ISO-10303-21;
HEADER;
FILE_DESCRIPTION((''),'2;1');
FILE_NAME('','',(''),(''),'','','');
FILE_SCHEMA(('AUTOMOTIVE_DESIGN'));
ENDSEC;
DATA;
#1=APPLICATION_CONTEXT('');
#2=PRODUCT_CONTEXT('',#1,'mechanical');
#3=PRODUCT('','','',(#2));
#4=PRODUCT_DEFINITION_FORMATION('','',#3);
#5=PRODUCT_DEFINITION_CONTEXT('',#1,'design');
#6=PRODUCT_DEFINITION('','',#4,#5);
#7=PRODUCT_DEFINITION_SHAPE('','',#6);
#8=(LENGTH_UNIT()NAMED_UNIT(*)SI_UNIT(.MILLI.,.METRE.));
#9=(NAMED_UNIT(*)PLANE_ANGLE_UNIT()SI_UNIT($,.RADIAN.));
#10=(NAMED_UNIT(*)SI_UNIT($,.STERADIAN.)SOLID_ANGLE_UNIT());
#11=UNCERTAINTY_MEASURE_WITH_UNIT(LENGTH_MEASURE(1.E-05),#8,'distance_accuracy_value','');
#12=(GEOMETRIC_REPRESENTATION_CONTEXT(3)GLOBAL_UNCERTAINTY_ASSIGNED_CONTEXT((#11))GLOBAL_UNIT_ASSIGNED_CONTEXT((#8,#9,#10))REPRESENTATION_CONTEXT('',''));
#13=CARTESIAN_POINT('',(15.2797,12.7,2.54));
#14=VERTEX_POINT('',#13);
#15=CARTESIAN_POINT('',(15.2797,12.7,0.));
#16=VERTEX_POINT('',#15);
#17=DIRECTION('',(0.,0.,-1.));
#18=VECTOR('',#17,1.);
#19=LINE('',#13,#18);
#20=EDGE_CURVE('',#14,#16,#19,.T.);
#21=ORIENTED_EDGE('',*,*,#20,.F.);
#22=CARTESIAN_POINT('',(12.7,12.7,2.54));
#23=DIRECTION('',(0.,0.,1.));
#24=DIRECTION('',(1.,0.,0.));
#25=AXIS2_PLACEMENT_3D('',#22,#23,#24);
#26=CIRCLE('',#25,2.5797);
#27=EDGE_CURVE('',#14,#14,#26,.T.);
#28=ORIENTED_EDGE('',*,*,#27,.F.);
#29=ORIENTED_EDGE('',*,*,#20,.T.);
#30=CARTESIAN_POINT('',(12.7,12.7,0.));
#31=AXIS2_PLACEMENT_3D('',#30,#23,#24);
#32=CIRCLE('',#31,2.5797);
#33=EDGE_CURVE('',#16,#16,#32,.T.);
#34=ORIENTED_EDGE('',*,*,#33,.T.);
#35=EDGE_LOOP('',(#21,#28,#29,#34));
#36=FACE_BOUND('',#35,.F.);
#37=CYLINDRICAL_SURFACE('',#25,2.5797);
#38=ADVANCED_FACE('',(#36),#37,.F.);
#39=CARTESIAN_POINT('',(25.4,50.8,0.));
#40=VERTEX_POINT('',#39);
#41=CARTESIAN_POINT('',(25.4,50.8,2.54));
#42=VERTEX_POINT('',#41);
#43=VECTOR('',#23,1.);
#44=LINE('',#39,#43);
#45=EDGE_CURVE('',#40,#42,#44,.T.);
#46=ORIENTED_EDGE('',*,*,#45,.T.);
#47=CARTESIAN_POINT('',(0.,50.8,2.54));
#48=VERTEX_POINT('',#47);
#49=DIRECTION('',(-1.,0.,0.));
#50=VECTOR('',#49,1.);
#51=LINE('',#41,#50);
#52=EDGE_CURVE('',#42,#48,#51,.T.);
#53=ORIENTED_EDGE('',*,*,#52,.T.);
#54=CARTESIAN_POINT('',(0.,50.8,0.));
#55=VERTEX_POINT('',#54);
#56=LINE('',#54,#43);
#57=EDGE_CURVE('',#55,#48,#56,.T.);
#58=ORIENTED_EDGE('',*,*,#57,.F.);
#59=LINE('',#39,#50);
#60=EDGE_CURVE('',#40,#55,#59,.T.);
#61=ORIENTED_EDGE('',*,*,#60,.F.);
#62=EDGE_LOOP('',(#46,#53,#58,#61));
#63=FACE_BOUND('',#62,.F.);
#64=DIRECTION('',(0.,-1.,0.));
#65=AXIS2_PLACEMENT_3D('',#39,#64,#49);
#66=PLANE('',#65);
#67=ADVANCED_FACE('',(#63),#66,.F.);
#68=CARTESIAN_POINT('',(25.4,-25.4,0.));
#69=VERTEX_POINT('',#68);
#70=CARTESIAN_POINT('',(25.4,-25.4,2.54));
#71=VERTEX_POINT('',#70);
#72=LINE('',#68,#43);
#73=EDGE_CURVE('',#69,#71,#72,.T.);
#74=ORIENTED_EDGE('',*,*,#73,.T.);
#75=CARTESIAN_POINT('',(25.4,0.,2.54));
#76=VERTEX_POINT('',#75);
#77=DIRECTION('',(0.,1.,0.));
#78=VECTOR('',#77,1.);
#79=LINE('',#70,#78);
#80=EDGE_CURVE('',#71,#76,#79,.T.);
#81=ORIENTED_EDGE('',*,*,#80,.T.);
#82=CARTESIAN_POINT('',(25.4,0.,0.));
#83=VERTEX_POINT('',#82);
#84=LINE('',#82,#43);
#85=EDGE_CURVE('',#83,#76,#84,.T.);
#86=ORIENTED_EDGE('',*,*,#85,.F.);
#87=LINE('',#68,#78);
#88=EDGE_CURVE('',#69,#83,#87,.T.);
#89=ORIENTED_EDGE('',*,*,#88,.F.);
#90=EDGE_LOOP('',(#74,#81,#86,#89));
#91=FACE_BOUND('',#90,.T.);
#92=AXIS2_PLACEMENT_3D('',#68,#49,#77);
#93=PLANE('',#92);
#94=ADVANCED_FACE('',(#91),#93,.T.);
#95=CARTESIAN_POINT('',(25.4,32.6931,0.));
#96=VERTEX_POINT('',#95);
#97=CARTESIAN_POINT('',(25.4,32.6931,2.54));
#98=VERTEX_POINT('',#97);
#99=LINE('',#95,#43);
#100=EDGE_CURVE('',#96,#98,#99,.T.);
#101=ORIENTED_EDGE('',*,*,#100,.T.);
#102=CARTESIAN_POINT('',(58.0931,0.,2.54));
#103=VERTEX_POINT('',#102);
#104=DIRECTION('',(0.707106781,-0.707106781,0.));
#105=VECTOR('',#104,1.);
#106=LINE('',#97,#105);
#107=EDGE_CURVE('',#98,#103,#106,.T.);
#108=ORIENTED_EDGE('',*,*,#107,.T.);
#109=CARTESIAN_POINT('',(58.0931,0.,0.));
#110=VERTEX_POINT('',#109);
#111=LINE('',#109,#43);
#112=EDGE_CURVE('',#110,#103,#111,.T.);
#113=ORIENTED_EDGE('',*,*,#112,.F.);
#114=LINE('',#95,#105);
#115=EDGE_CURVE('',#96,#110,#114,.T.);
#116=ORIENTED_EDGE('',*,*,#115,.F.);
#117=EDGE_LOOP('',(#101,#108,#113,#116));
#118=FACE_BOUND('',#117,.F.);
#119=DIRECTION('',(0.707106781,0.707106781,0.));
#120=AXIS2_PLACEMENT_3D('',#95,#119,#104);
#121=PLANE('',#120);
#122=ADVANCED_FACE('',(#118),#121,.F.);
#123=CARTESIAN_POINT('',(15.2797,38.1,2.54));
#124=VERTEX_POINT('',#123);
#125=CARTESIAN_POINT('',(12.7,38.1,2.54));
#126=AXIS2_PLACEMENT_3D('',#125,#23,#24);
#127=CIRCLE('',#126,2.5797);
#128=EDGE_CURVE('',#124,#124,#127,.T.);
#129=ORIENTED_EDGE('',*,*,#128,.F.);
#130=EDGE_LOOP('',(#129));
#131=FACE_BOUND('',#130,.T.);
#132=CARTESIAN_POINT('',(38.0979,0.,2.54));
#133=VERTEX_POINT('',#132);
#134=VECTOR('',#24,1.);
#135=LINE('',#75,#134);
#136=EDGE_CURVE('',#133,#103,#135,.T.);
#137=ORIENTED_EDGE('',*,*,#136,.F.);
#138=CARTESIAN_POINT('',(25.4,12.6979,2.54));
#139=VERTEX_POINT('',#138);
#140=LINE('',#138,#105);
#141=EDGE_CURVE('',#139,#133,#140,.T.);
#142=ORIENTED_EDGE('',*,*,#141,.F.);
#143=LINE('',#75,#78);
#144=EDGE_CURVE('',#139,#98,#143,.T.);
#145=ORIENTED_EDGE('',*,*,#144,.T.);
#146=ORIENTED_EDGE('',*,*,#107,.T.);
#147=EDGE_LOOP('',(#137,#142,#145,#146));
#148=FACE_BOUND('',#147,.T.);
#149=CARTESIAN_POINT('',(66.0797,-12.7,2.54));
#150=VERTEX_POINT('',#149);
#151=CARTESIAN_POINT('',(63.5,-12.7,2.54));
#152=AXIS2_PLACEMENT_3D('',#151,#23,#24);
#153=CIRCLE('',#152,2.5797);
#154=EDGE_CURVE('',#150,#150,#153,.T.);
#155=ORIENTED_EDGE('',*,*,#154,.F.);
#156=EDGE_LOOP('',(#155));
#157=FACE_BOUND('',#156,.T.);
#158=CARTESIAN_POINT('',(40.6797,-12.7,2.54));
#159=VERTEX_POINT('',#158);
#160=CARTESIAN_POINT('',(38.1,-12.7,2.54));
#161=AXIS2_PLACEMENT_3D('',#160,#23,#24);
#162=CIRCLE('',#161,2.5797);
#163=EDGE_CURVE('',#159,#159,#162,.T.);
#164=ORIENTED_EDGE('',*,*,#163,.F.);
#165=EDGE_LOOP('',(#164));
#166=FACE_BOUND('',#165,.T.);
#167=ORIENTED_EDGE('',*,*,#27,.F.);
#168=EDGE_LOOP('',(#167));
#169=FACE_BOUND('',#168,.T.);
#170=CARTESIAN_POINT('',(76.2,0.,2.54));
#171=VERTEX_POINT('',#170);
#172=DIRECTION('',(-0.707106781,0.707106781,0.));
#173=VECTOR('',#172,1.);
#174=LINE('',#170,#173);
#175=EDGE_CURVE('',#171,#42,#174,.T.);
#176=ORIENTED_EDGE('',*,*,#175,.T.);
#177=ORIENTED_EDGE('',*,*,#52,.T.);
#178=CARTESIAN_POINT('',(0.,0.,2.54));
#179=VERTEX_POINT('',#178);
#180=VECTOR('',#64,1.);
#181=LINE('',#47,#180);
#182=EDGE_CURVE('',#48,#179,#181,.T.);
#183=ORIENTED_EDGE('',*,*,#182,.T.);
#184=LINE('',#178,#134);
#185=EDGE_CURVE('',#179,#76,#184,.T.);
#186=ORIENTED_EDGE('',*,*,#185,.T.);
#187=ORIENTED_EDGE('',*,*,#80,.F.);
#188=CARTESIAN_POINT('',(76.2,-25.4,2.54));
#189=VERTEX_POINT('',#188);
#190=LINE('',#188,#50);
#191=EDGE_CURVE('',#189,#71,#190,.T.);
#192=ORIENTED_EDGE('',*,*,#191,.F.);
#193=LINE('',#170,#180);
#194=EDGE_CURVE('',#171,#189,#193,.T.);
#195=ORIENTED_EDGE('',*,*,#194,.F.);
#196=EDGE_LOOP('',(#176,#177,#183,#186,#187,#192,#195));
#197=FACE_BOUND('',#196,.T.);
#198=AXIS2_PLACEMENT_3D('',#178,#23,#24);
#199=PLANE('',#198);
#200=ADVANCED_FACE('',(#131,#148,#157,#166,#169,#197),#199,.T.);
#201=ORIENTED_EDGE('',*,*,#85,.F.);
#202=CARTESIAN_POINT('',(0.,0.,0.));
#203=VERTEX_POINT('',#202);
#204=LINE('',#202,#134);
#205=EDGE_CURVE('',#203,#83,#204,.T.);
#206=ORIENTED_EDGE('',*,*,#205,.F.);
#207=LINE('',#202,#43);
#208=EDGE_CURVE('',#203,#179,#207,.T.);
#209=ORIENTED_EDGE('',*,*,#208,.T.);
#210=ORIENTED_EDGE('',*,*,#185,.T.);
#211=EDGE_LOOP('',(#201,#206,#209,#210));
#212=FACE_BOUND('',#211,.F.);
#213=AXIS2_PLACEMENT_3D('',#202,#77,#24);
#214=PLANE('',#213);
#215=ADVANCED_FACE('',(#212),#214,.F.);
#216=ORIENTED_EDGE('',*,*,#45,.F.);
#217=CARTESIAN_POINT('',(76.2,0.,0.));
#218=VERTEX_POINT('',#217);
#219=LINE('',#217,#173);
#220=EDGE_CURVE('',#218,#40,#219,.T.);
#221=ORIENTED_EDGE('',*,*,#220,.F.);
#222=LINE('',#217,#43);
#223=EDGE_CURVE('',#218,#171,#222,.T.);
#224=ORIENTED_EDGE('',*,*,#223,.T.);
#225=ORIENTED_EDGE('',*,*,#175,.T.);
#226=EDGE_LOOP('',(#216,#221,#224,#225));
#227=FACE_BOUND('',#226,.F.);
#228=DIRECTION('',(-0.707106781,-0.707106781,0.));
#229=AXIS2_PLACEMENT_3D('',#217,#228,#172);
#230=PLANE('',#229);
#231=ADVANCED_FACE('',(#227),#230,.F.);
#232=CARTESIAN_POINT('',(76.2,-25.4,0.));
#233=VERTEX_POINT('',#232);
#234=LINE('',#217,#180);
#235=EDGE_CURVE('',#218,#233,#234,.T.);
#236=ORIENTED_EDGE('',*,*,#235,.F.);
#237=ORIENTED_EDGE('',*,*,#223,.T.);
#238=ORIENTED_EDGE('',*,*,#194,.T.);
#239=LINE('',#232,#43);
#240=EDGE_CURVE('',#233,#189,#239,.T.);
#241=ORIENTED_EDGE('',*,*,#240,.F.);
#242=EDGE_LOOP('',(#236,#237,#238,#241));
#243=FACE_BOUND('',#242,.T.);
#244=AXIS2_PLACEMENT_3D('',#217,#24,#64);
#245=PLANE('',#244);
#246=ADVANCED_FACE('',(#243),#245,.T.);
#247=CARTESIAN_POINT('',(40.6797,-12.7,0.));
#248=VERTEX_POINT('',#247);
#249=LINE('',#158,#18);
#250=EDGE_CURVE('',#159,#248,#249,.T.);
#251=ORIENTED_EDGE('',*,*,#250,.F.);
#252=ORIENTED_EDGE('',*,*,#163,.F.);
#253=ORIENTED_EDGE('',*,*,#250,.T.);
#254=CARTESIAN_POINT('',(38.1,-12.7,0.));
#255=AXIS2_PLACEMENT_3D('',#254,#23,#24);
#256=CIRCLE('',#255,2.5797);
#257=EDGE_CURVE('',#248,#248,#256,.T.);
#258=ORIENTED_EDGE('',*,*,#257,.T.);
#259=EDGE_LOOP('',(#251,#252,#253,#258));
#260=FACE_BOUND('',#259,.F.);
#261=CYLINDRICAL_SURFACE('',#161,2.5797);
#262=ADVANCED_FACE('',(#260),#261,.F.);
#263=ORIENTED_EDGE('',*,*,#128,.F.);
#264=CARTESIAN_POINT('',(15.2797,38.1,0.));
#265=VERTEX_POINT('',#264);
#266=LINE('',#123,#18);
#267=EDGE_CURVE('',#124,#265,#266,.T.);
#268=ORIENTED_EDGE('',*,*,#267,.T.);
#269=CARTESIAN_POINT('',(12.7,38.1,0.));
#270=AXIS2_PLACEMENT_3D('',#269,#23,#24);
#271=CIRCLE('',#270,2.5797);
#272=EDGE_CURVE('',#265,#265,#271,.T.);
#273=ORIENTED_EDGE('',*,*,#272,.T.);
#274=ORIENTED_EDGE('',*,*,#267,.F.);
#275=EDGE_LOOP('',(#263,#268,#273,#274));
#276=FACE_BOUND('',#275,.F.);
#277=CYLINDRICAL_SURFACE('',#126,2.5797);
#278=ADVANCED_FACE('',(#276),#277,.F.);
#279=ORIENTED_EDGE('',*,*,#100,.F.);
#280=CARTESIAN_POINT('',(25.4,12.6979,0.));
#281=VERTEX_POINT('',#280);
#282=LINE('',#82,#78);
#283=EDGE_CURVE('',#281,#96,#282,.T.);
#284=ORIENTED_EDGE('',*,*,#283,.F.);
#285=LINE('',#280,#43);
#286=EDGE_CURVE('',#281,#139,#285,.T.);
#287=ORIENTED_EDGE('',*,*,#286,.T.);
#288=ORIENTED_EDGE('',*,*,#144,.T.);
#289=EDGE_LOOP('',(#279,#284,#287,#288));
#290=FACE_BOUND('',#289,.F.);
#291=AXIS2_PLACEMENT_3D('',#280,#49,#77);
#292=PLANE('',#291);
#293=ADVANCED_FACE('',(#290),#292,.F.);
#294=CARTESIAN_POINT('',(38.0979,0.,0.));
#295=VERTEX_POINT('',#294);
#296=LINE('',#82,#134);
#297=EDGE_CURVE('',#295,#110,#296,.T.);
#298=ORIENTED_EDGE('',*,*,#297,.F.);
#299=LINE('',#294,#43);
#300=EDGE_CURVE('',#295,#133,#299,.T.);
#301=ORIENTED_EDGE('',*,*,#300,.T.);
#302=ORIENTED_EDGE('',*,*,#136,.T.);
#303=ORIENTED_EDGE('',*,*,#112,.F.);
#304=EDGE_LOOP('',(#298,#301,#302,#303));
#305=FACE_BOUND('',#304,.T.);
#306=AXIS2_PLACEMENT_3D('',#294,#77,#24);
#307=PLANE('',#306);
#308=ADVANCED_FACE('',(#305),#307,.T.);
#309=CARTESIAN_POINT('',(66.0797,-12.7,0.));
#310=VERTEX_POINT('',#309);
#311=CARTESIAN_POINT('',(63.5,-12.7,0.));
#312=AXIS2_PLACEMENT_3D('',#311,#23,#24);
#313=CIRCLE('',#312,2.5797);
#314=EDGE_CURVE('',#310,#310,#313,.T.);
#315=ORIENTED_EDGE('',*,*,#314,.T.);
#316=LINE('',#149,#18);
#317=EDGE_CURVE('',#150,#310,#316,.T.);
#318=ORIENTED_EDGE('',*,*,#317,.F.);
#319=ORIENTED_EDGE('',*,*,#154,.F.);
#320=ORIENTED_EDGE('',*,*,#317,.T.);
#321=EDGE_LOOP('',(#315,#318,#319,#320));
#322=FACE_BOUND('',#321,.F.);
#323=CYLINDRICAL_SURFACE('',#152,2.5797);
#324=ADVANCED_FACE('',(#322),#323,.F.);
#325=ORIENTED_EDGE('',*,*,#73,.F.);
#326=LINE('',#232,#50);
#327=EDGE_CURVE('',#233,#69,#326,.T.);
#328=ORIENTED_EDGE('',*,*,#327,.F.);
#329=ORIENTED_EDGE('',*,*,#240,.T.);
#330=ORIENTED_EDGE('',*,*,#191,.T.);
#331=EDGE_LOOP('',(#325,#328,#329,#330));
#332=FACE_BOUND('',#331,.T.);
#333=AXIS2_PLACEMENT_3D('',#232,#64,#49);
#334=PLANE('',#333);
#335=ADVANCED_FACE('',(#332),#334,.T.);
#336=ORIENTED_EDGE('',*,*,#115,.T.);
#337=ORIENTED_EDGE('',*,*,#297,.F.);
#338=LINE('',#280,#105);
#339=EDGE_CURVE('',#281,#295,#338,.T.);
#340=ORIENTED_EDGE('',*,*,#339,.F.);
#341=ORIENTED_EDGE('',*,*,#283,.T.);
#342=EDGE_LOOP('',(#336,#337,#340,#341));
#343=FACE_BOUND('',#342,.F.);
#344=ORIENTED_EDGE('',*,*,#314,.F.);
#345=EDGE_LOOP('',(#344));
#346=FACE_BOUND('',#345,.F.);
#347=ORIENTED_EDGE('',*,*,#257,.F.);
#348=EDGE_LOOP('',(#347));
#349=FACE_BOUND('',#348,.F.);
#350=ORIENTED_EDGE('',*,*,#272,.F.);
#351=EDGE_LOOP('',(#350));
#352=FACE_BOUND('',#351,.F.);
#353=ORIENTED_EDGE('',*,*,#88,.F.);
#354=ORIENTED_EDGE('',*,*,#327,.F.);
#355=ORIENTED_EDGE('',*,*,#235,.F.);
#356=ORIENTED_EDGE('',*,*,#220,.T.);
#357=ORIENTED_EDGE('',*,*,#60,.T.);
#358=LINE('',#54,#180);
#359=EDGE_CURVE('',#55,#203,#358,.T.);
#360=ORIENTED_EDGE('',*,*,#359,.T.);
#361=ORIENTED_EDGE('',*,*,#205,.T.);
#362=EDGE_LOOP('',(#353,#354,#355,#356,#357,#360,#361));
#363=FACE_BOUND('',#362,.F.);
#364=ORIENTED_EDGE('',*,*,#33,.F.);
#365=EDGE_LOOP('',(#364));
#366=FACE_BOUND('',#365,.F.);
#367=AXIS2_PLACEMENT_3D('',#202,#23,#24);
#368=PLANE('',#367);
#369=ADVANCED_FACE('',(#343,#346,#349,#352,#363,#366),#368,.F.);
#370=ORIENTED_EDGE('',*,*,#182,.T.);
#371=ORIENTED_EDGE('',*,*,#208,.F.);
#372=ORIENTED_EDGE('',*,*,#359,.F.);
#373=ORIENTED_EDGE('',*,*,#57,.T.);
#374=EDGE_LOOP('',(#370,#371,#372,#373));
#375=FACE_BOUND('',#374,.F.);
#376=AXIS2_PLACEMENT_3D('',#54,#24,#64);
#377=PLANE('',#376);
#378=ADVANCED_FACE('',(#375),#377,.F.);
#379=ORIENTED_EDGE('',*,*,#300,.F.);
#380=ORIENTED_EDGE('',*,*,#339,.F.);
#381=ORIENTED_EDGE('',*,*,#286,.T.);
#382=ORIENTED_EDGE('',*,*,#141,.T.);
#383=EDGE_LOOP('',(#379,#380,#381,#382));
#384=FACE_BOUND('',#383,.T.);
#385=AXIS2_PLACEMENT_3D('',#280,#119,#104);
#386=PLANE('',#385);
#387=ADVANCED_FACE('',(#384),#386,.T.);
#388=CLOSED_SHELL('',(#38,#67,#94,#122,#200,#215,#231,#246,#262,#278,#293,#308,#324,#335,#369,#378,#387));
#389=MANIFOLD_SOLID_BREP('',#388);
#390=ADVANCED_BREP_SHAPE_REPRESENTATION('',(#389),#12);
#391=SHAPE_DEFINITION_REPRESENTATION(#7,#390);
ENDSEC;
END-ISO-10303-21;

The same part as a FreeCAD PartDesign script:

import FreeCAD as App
import Part
import Sketcher

V = App.Vector
Q = App.Units.Quantity

doc = App.newDocument("Part")
body = doc.addObject("PartDesign::Body", "Body")

# Sketch on XY plane
sketch1 = body.newObject("Sketcher::SketchObject", "Sketch")
sketch1.AttachmentSupport = (doc.getObject("XY_Plane"), [""])
sketch1.MapMode = "FlatFace"
sketch1.addGeometry([
    Part.LineSegment(V(0, 50.8, 0), V(0, 0, 0)),  # 0
    Part.LineSegment(V(0, 0, 0), V(25.4, 0, 0)),  # 1
    Part.LineSegment(V(25.4, 0, 0), V(25.4, -25.4, 0)),  # 2
    Part.LineSegment(V(25.4, -25.4, 0), V(76.2, -25.4, 0)),  # 3
    Part.LineSegment(V(76.2, -25.4, 0), V(76.2, 0, 0)),  # 4
    Part.LineSegment(V(76.2, 0, 0), V(25.4, 50.8, 0)),  # 5
    Part.LineSegment(V(25.4, 50.8, 0), V(0, 50.8, 0)),  # 6
    Part.LineSegment(V(25.4, 12.6979, 0), V(25.4, 32.6931, 0)),  # 7
    Part.LineSegment(V(25.4, 32.6931, 0), V(58.0931, 0, 0)),  # 8
    Part.LineSegment(V(58.0931, 0, 0), V(38.0979, 0, 0)),  # 9
    Part.LineSegment(V(38.0979, 0, 0), V(25.4, 12.6979, 0)),  # 10
], False)
sketch1.addConstraint([
    Sketcher.Constraint("Coincident", 0, 2, 1, 1),
    Sketcher.Constraint("Coincident", 1, 2, 2, 1),
    Sketcher.Constraint("Coincident", 2, 2, 3, 1),
    Sketcher.Constraint("Coincident", 3, 2, 4, 1),
    Sketcher.Constraint("Coincident", 4, 2, 5, 1),
    Sketcher.Constraint("Coincident", 5, 2, 6, 1),
    Sketcher.Constraint("Coincident", 6, 2, 0, 1),
    Sketcher.Constraint("Coincident", 7, 2, 8, 1),
    Sketcher.Constraint("Coincident", 8, 2, 9, 1),
    Sketcher.Constraint("Coincident", 9, 2, 10, 1),
    Sketcher.Constraint("Coincident", 10, 2, 7, 1),
    Sketcher.Constraint("Vertical", 0),
    Sketcher.Constraint("Horizontal", 1),
    Sketcher.Constraint("Vertical", 2),
    Sketcher.Constraint("Horizontal", 3),
    Sketcher.Constraint("Vertical", 4),
    Sketcher.Constraint("Horizontal", 6),
    Sketcher.Constraint("Vertical", 7),
    Sketcher.Constraint("Horizontal", 9),
    Sketcher.Constraint("Coincident", 0, 2, -1, 1),
    Sketcher.Constraint("PointOnObject", 4, 2, -1),
    Sketcher.Constraint("PointOnObject", 8, 2, -1),
    Sketcher.Constraint("Parallel", 5, 8),
    Sketcher.Constraint("Parallel", 8, 10),
    Sketcher.Constraint("Vertical", 2, 2, 5, 2),
    Sketcher.Constraint("Vertical", 5, 2, 7, 2),
    Sketcher.Constraint("Equal", 3, 0),
    Sketcher.Constraint("Equal", 6, 2),
    Sketcher.Constraint("DistanceX", 1, 1, 1, 2, Q("1 in")),
    Sketcher.Constraint("DistanceX", 3, 1, 3, 2, Q("2 in")),
    Sketcher.Constraint("Distance", 10, Q("0.707 in")),
    Sketcher.Constraint("DistanceX", 9, 2, 9, 1, 19.9952),
])
pad1 = body.newObject("PartDesign::Pad", "Pad")
pad1.Profile = sketch1
pad1.Length = Q("0.1 in")

# Sketch on XY plane
sketch2 = body.newObject("Sketcher::SketchObject", "Sketch001")
sketch2.AttachmentSupport = (doc.getObject("XY_Plane"), [""])
sketch2.MapMode = "FlatFace"
sketch2.AttachmentOffset = App.Placement(V(0, 0, 0.1 * 25.4), App.Rotation())
sketch2.addGeometry([
    Part.Circle(V(12.7, 12.7, 0), V(0, 0, 1), 2.5797),
    Part.Circle(V(12.7, 38.1, 0), V(0, 0, 1), 2.5797),
    Part.Circle(V(38.1, -12.7, 0), V(0, 0, 1), 2.5797),
    Part.Circle(V(63.5, -12.7, 0), V(0, 0, 1), 2.5797),
], False)
sketch2.addConstraint([
    Sketcher.Constraint("Equal", 0, 1),
    Sketcher.Constraint("Equal", 1, 2),
    Sketcher.Constraint("Equal", 2, 3),
    Sketcher.Constraint("Horizontal", 2, 3, 3, 3),
    Sketcher.Constraint("Vertical", 0, 3, 1, 3),
    Sketcher.Constraint("Diameter", 0, Q("0.203126 in")),
    Sketcher.Constraint("DistanceX", -1, 1, 0, 3, Q("0.5 in")),
    Sketcher.Constraint("DistanceY", -1, 1, 0, 3, Q("0.5 in")),
    Sketcher.Constraint("DistanceY", 2, 3, -1, 1, Q("0.5 in")),
    Sketcher.Constraint("DistanceY", 0, 3, 1, 3, Q("1 in")),
    Sketcher.Constraint("DistanceX", 0, 3, 2, 3, Q("1 in")),
    Sketcher.Constraint("DistanceX", 2, 3, 3, 3, Q("1 in")),
])
pocket1 = body.newObject("PartDesign::Pocket", "Pocket")
pocket1.Profile = sketch2
pocket1.Length = Q("0.1 in")

doc.recompute()
